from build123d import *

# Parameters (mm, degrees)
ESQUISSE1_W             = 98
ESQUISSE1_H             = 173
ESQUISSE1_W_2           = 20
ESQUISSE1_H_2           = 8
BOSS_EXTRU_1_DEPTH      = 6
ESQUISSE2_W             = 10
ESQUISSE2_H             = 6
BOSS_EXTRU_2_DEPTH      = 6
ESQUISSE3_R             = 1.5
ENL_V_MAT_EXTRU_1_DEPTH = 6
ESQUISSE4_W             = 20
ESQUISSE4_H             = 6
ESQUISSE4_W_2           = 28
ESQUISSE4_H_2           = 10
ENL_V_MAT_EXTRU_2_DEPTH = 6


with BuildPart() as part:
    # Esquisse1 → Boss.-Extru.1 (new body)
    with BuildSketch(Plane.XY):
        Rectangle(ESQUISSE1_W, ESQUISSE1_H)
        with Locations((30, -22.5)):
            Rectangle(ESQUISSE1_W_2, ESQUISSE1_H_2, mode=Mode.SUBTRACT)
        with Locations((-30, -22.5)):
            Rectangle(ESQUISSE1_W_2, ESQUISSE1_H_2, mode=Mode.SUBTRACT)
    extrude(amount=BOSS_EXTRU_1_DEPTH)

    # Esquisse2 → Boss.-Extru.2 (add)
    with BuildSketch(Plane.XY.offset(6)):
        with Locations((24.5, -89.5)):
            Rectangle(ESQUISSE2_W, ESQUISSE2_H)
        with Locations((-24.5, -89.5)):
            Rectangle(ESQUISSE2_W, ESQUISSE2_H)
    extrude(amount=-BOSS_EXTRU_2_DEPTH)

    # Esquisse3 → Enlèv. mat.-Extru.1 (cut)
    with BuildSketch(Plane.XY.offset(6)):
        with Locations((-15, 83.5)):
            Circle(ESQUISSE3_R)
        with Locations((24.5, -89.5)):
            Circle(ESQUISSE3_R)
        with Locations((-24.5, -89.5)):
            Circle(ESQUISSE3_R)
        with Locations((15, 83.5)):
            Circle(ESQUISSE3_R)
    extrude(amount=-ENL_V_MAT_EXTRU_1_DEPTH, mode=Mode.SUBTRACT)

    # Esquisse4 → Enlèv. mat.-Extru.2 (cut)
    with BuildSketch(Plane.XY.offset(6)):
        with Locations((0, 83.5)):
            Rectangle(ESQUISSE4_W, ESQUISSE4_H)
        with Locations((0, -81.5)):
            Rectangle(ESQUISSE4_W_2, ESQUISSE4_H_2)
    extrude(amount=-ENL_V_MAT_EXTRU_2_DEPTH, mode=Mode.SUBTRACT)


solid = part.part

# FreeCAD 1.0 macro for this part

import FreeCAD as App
import Part
import Sketcher
from FreeCAD import Vector
Q = App.Units.Quantity

doc = App.newDocument("Part")
body = doc.addObject("PartDesign::Body", "Body")

# Sketch on XY plane
sketch1 = doc.addObject("Sketcher::SketchObject", "Sketch")
body.addObject(sketch1)
sketch1.AttachmentSupport = (doc.XY_Plane, [""])
sketch1.MapMode = "FlatFace"
sketch1.addGeometry([
    Part.LineSegment(Vector(-49, 86.5, 0), Vector(-49, -86.5, 0)),  # 0
    Part.LineSegment(Vector(-49, -86.5, 0), Vector(49, -86.5, 0)),  # 1
    Part.LineSegment(Vector(49, -86.5, 0), Vector(49, 86.5, 0)),  # 2
    Part.LineSegment(Vector(49, 86.5, 0), Vector(-49, 86.5, 0)),  # 3
    Part.LineSegment(Vector(-20, -26.5, 0), Vector(-40, -26.5, 0)),  # 4
    Part.LineSegment(Vector(-40, -26.5, 0), Vector(-40, -18.5, 0)),  # 5
    Part.LineSegment(Vector(-40, -18.5, 0), Vector(-20, -18.5, 0)),  # 6
    Part.LineSegment(Vector(-20, -18.5, 0), Vector(-20, -26.5, 0)),  # 7
    Part.LineSegment(Vector(40, -26.5, 0), Vector(20, -26.5, 0)),  # 8
    Part.LineSegment(Vector(20, -26.5, 0), Vector(20, -18.5, 0)),  # 9
    Part.LineSegment(Vector(20, -18.5, 0), Vector(40, -18.5, 0)),  # 10
    Part.LineSegment(Vector(40, -18.5, 0), Vector(40, -26.5, 0)),  # 11
], False)
sketch1.addConstraint([
    Sketcher.Constraint("Coincident", 0, 2, 1, 1),
    Sketcher.Constraint("Coincident", 1, 2, 2, 1),
    Sketcher.Constraint("Coincident", 2, 2, 3, 1),
    Sketcher.Constraint("Coincident", 3, 2, 0, 1),
    Sketcher.Constraint("Coincident", 4, 2, 5, 1),
    Sketcher.Constraint("Coincident", 5, 2, 6, 1),
    Sketcher.Constraint("Coincident", 6, 2, 7, 1),
    Sketcher.Constraint("Coincident", 7, 2, 4, 1),
    Sketcher.Constraint("Coincident", 8, 2, 9, 1),
    Sketcher.Constraint("Coincident", 9, 2, 10, 1),
    Sketcher.Constraint("Coincident", 10, 2, 11, 1),
    Sketcher.Constraint("Coincident", 11, 2, 8, 1),
    Sketcher.Constraint("Vertical", 0),
    Sketcher.Constraint("Horizontal", 1),
    Sketcher.Constraint("Vertical", 2),
    Sketcher.Constraint("Horizontal", 3),
    Sketcher.Constraint("Horizontal", 4),
    Sketcher.Constraint("Vertical", 5),
    Sketcher.Constraint("Horizontal", 6),
    Sketcher.Constraint("Vertical", 7),
    Sketcher.Constraint("Horizontal", 8),
    Sketcher.Constraint("Vertical", 9),
    Sketcher.Constraint("Horizontal", 10),
    Sketcher.Constraint("Vertical", 11),
    Sketcher.Constraint("Symmetric", 0, 2, 2, 2, -1, 1),
    Sketcher.Constraint("Symmetric", 7, 2, 8, 2, -2),
    Sketcher.Constraint("Symmetric", 5, 2, 10, 2, -2),
    Sketcher.Constraint("DistanceX", 1, 1, 1, 2, Q("98 mm")),
    Sketcher.Constraint("DistanceX", 4, 2, 4, 1, Q("20 mm")),
    Sketcher.Constraint("DistanceY", 0, 2, 0, 1, Q("173 mm")),
    Sketcher.Constraint("DistanceY", 5, 1, 5, 2, Q("8 mm")),
    Sketcher.Constraint("DistanceX", 4, 2, -1, 1, Q("40 mm")),
    Sketcher.Constraint("DistanceY", 0, 2, 4, 2, Q("60 mm")),
])
pad1 = doc.addObject("PartDesign::Pad", "Pad")
body.addObject(pad1)
pad1.Profile = sketch1
pad1.Length = 6

# Sketch on XY plane
sketch2 = doc.addObject("Sketcher::SketchObject", "Sketch001")
body.addObject(sketch2)
sketch2.AttachmentSupport = (doc.XY_Plane, [""])
sketch2.MapMode = "FlatFace"
sketch2.AttachmentOffset = App.Placement(Vector(0, 0, 6), App.Rotation())
sketch2.addGeometry([
    Part.LineSegment(Vector(19.5, -86.5, 0), Vector(19.5, -92.5, 0)),  # 0
    Part.LineSegment(Vector(19.5, -92.5, 0), Vector(29.5, -92.5, 0)),  # 1
    Part.LineSegment(Vector(29.5, -92.5, 0), Vector(29.5, -86.5, 0)),  # 2
    Part.LineSegment(Vector(29.5, -86.5, 0), Vector(19.5, -86.5, 0)),  # 3
    Part.LineSegment(Vector(-29.5, -86.5, 0), Vector(-29.5, -92.5, 0)),  # 4
    Part.LineSegment(Vector(-29.5, -92.5, 0), Vector(-19.5, -92.5, 0)),  # 5
    Part.LineSegment(Vector(-19.5, -92.5, 0), Vector(-19.5, -86.5, 0)),  # 6
    Part.LineSegment(Vector(-19.5, -86.5, 0), Vector(-29.5, -86.5, 0)),  # 7
], False)
sketch2.addConstraint([
    Sketcher.Constraint("Coincident", 0, 2, 1, 1),
    Sketcher.Constraint("Coincident", 1, 2, 2, 1),
    Sketcher.Constraint("Coincident", 2, 2, 3, 1),
    Sketcher.Constraint("Coincident", 3, 2, 0, 1),
    Sketcher.Constraint("Coincident", 4, 2, 5, 1),
    Sketcher.Constraint("Coincident", 5, 2, 6, 1),
    Sketcher.Constraint("Coincident", 6, 2, 7, 1),
    Sketcher.Constraint("Coincident", 7, 2, 4, 1),
    Sketcher.Constraint("Vertical", 0),
    Sketcher.Constraint("Horizontal", 1),
    Sketcher.Constraint("Vertical", 2),
    Sketcher.Constraint("Horizontal", 3),
    Sketcher.Constraint("Vertical", 4),
    Sketcher.Constraint("Horizontal", 5),
    Sketcher.Constraint("Vertical", 6),
    Sketcher.Constraint("Horizontal", 7),
    Sketcher.Constraint("Symmetric", 1, 2, 4, 2, -2),
    Sketcher.Constraint("Symmetric", 3, 2, 6, 2, -2),
    Sketcher.Constraint("DistanceX", 1, 1, 1, 2, Q("10 mm")),
    Sketcher.Constraint("DistanceY", 0, 2, 0, 1, Q("6 mm")),
    Sketcher.Constraint("DistanceX", 4, 2, 0, 2, Q("49 mm")),
    Sketcher.Constraint("DistanceY", 0, 2, -1, 1, Q("92.5 mm")),
])
pad2 = doc.addObject("PartDesign::Pad", "Pad001")
body.addObject(pad2)
pad2.Profile = sketch2
pad2.Length = 6
pad2.Reversed = True

# Sketch on XY plane
sketch3 = doc.addObject("Sketcher::SketchObject", "Sketch002")
body.addObject(sketch3)
sketch3.AttachmentSupport = (doc.XY_Plane, [""])
sketch3.MapMode = "FlatFace"
sketch3.AttachmentOffset = App.Placement(Vector(0, 0, 6), App.Rotation())
sketch3.addGeometry([
    Part.Circle(Vector(-15, 83.5, 0), Vector(0, 0, 1), 1.5),
    Part.Circle(Vector(24.5, -89.5, 0), Vector(0, 0, 1), 1.5),
    Part.Circle(Vector(-24.5, -89.5, 0), Vector(0, 0, 1), 1.5),
    Part.Circle(Vector(15, 83.5, 0), Vector(0, 0, 1), 1.5),
], False)
sketch3.addConstraint([
    Sketcher.Constraint("Equal", 0, 1),
    Sketcher.Constraint("Equal", 1, 2),
    Sketcher.Constraint("Equal", 2, 3),
    Sketcher.Constraint("Symmetric", 1, 3, 2, 3, -2),
    Sketcher.Constraint("Symmetric", 0, 3, 3, 3, -2),
    Sketcher.Constraint("Diameter", 0, Q("3 mm")),
    Sketcher.Constraint("DistanceX", 0, 3, -1, 1, Q("15 mm")),
    Sketcher.Constraint("DistanceY", 1, 3, 0, 3, Q("173 mm")),
    Sketcher.Constraint("DistanceX", 2, 3, 1, 3, Q("49 mm")),
    Sketcher.Constraint("DistanceY", -1, 1, 0, 3, Q("83.5 mm")),
])
pocket1 = doc.addObject("PartDesign::Pocket", "Pocket")
body.addObject(pocket1)
pocket1.Profile = sketch3
pocket1.Length = 6

# Sketch on XY plane
sketch4 = doc.addObject("Sketcher::SketchObject", "Sketch003")
body.addObject(sketch4)
sketch4.AttachmentSupport = (doc.XY_Plane, [""])
sketch4.MapMode = "FlatFace"
sketch4.AttachmentOffset = App.Placement(Vector(0, 0, 6), App.Rotation())
sketch4.addGeometry([
    Part.LineSegment(Vector(-10, 86.5, 0), Vector(-10, 80.5, 0)),  # 0
    Part.LineSegment(Vector(-10, 80.5, 0), Vector(10, 80.5, 0)),  # 1
    Part.LineSegment(Vector(10, 80.5, 0), Vector(10, 86.5, 0)),  # 2
    Part.LineSegment(Vector(10, 86.5, 0), Vector(-10, 86.5, 0)),  # 3
    Part.LineSegment(Vector(-14, -76.5, 0), Vector(-14, -86.5, 0)),  # 4
    Part.LineSegment(Vector(-14, -86.5, 0), Vector(14, -86.5, 0)),  # 5
    Part.LineSegment(Vector(14, -86.5, 0), Vector(14, -76.5, 0)),  # 6
    Part.LineSegment(Vector(14, -76.5, 0), Vector(-14, -76.5, 0)),  # 7
], False)
sketch4.addConstraint([
    Sketcher.Constraint("Coincident", 0, 2, 1, 1),
    Sketcher.Constraint("Coincident", 1, 2, 2, 1),
    Sketcher.Constraint("Coincident", 2, 2, 3, 1),
    Sketcher.Constraint("Coincident", 3, 2, 0, 1),
    Sketcher.Constraint("Coincident", 4, 2, 5, 1),
    Sketcher.Constraint("Coincident", 5, 2, 6, 1),
    Sketcher.Constraint("Coincident", 6, 2, 7, 1),
    Sketcher.Constraint("Coincident", 7, 2, 4, 1),
    Sketcher.Constraint("Vertical", 0),
    Sketcher.Constraint("Horizontal", 1),
    Sketcher.Constraint("Vertical", 2),
    Sketcher.Constraint("Horizontal", 3),
    Sketcher.Constraint("Vertical", 4),
    Sketcher.Constraint("Horizontal", 5),
    Sketcher.Constraint("Vertical", 6),
    Sketcher.Constraint("Horizontal", 7),
    Sketcher.Constraint("DistanceX", 1, 1, 1, 2, Q("20 mm")),
    Sketcher.Constraint("DistanceX", 5, 1, 5, 2, Q("28 mm")),
    Sketcher.Constraint("DistanceY", 0, 2, 0, 1, Q("6 mm")),
    Sketcher.Constraint("DistanceY", 4, 2, 4, 1, Q("10 mm")),
    Sketcher.Constraint("DistanceX", 0, 2, -1, 1, Q("10 mm")),
    Sketcher.Constraint("DistanceX", 4, 2, -1, 1, Q("14 mm")),
    Sketcher.Constraint("DistanceY", 4, 2, 0, 2, Q("167 mm")),
    Sketcher.Constraint("DistanceY", -1, 1, 0, 2, Q("80.5 mm")),
])
pocket2 = doc.addObject("PartDesign::Pocket", "Pocket001")
body.addObject(pocket2)
pocket2.Profile = sketch4
pocket2.Length = 6

doc.recompute()
